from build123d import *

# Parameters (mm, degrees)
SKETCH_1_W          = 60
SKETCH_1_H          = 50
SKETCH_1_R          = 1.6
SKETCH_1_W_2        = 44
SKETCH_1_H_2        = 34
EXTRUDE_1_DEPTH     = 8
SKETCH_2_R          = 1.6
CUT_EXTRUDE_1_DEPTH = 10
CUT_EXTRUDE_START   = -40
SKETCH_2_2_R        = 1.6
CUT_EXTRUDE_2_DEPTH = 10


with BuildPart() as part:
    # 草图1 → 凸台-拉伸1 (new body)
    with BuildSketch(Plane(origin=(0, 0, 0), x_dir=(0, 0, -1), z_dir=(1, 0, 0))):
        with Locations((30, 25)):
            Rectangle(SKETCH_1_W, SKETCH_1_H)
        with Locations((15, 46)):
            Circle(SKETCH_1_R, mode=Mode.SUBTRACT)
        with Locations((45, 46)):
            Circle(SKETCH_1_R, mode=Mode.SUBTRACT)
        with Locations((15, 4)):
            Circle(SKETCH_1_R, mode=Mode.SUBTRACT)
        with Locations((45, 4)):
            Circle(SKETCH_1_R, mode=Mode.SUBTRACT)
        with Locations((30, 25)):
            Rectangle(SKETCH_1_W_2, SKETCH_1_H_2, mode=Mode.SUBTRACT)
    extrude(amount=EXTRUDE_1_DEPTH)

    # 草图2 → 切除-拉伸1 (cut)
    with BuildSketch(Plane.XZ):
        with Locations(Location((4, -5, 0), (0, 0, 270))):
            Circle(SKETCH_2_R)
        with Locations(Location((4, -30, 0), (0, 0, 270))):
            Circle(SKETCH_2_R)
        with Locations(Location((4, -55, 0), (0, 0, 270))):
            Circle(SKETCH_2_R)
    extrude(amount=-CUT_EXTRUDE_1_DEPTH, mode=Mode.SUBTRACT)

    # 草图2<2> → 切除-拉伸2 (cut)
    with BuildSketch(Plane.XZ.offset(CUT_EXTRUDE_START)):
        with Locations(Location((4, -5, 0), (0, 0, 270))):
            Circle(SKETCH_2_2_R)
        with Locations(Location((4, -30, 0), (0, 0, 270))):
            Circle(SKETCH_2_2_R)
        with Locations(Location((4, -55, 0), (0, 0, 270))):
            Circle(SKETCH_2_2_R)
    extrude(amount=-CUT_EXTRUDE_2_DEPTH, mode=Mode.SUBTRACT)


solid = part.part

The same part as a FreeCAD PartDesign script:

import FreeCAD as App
import Part
import Sketcher
Q = App.Units.Quantity

doc = App.newDocument("Part")
body = doc.addObject("PartDesign::Body", "Body")

sketch1 = body.newObject("Sketcher::SketchObject", "Sketch")
sketch1.AttachmentSupport = (doc.getObject("YZ_Plane"), [""])
sketch1.MapMode = "FlatFace"
sketch1.addGeometry([
    Part.LineSegment(App.Vector(50, 0, 0), App.Vector(0, 0, 0)),
    Part.LineSegment(App.Vector(0, 0, 0), App.Vector(0, -60, 0)),
    Part.LineSegment(App.Vector(0, -60, 0), App.Vector(50, -60, 0)),
    Part.LineSegment(App.Vector(50, -60, 0), App.Vector(50, 0, 0)),
    Part.Circle(App.Vector(4, -15, 0), App.Vector(0, 0, 1), 1.6),
    Part.Circle(App.Vector(4, -45, 0), App.Vector(0, 0, 1), 1.6),
    Part.Circle(App.Vector(46, -15, 0), App.Vector(0, 0, 1), 1.6),
    Part.LineSegment(App.Vector(8, -52, 0), App.Vector(8, -8, 0)),
    Part.LineSegment(App.Vector(8, -8, 0), App.Vector(42, -8, 0)),
    Part.LineSegment(App.Vector(42, -8, 0), App.Vector(42, -52, 0)),
    Part.LineSegment(App.Vector(42, -52, 0), App.Vector(8, -52, 0)),
    Part.Circle(App.Vector(46, -45, 0), App.Vector(0, 0, 1), 1.6),
], False)
sketch1.addConstraint([
    Sketcher.Constraint("Coincident", 0, 2, 1, 1),
    Sketcher.Constraint("Coincident", 1, 2, 2, 1),
    Sketcher.Constraint("Coincident", 2, 2, 3, 1),
    Sketcher.Constraint("Coincident", 3, 2, 0, 1),
    Sketcher.Constraint("Coincident", 7, 2, 8, 1),
    Sketcher.Constraint("Coincident", 8, 2, 9, 1),
    Sketcher.Constraint("Coincident", 9, 2, 10, 1),
    Sketcher.Constraint("Coincident", 10, 2, 7, 1),
    Sketcher.Constraint("Horizontal", 0),
    Sketcher.Constraint("Vertical", 1),
    Sketcher.Constraint("Horizontal", 2),
    Sketcher.Constraint("Vertical", 3),
    Sketcher.Constraint("Vertical", 7),
    Sketcher.Constraint("Horizontal", 8),
    Sketcher.Constraint("Vertical", 9),
    Sketcher.Constraint("Horizontal", 10),
    Sketcher.Constraint("Coincident", 0, 2, -1, 1),
    Sketcher.Constraint("Equal", 4, 5),
    Sketcher.Constraint("Equal", 5, 6),
    Sketcher.Constraint("Equal", 6, 11),
    Sketcher.Constraint("Horizontal", 4, 3, 6, 3),
    Sketcher.Constraint("Horizontal", 5, 3, 11, 3),
    Sketcher.Constraint("Vertical", 4, 3, 5, 3),
    Sketcher.Constraint("Vertical", 6, 3, 11, 3),
    Sketcher.Constraint("Diameter", 4, Q("3.2 mm")),
    Sketcher.Constraint("DistanceX", 0, 2, 0, 1, Q("50 mm")),
    Sketcher.Constraint("DistanceX", 8, 1, 8, 2, Q("34 mm")),
    Sketcher.Constraint("DistanceY", 1, 2, 1, 1, Q("60 mm")),
    Sketcher.Constraint("DistanceY", 7, 1, 7, 2, Q("44 mm")),
    Sketcher.Constraint("DistanceX", -1, 1, 4, 3, Q("4 mm")),
    Sketcher.Constraint("DistanceY", 4, 3, -1, 1, Q("15 mm")),
    Sketcher.Constraint("DistanceY", 5, 3, -1, 1, Q("45 mm")),
    Sketcher.Constraint("DistanceX", -1, 1, 6, 3, Q("46 mm")),
    Sketcher.Constraint("DistanceX", -1, 1, 7, 2, Q("8 mm")),
    Sketcher.Constraint("DistanceY", 7, 2, -1, 1, Q("8 mm")),
])
pad1 = body.newObject("PartDesign::Pad", "Pad")
pad1.Profile = sketch1
pad1.Length = 8

sketch2 = body.newObject("Sketcher::SketchObject", "Sketch001")
sketch2.AttachmentSupport = (doc.getObject("XZ_Plane"), [""])
sketch2.MapMode = "FlatFace"
sketch2.addGeometry([
    Part.Circle(App.Vector(4, -5, 0), App.Vector(0, 0, 1), 1.6),
    Part.Circle(App.Vector(4, -30, 0), App.Vector(0, 0, 1), 1.6),
    Part.Circle(App.Vector(4, -55, 0), App.Vector(0, 0, 1), 1.6),
], False)
sketch2.addConstraint([
    Sketcher.Constraint("Equal", 0, 1),
    Sketcher.Constraint("Equal", 1, 2),
    Sketcher.Constraint("Vertical", 0, 3, 1, 3),
    Sketcher.Constraint("Vertical", 1, 3, 2, 3),
    Sketcher.Constraint("Diameter", 0, Q("3.2 mm")),
    Sketcher.Constraint("DistanceX", -1, 1, 0, 3, Q("4 mm")),
    Sketcher.Constraint("DistanceY", 0, 3, -1, 1, Q("5 mm")),
    Sketcher.Constraint("DistanceY", 1, 3, -1, 1, Q("30 mm")),
    Sketcher.Constraint("DistanceY", 2, 3, -1, 1, Q("55 mm")),
])
pocket1 = body.newObject("PartDesign::Pocket", "Pocket")
pocket1.Profile = sketch2
pocket1.Length = 10

sketch3 = body.newObject("Sketcher::SketchObject", "Sketch002")
sketch3.AttachmentSupport = (doc.getObject("XZ_Plane"), [""])
sketch3.MapMode = "FlatFace"
sketch3.AttachmentOffset = App.Placement(App.Vector(0, 0, -40), App.Rotation())
sketch3.addGeometry([
    Part.Circle(App.Vector(4, -5, 0), App.Vector(0, 0, 1), 1.6),
    Part.Circle(App.Vector(4, -30, 0), App.Vector(0, 0, 1), 1.6),
    Part.Circle(App.Vector(4, -55, 0), App.Vector(0, 0, 1), 1.6),
], False)
sketch3.addConstraint([
    Sketcher.Constraint("Equal", 0, 1),
    Sketcher.Constraint("Equal", 1, 2),
    Sketcher.Constraint("Vertical", 0, 3, 1, 3),
    Sketcher.Constraint("Vertical", 1, 3, 2, 3),
    Sketcher.Constraint("Diameter", 0, Q("3.2 mm")),
    Sketcher.Constraint("DistanceX", -1, 1, 0, 3, Q("4 mm")),
    Sketcher.Constraint("DistanceY", 0, 3, -1, 1, Q("5 mm")),
    Sketcher.Constraint("DistanceY", 1, 3, -1, 1, Q("30 mm")),
    Sketcher.Constraint("DistanceY", 2, 3, -1, 1, Q("55 mm")),
])
pocket2 = body.newObject("PartDesign::Pocket", "Pocket001")
pocket2.Profile = sketch3
pocket2.Length = 10

doc.recompute()
